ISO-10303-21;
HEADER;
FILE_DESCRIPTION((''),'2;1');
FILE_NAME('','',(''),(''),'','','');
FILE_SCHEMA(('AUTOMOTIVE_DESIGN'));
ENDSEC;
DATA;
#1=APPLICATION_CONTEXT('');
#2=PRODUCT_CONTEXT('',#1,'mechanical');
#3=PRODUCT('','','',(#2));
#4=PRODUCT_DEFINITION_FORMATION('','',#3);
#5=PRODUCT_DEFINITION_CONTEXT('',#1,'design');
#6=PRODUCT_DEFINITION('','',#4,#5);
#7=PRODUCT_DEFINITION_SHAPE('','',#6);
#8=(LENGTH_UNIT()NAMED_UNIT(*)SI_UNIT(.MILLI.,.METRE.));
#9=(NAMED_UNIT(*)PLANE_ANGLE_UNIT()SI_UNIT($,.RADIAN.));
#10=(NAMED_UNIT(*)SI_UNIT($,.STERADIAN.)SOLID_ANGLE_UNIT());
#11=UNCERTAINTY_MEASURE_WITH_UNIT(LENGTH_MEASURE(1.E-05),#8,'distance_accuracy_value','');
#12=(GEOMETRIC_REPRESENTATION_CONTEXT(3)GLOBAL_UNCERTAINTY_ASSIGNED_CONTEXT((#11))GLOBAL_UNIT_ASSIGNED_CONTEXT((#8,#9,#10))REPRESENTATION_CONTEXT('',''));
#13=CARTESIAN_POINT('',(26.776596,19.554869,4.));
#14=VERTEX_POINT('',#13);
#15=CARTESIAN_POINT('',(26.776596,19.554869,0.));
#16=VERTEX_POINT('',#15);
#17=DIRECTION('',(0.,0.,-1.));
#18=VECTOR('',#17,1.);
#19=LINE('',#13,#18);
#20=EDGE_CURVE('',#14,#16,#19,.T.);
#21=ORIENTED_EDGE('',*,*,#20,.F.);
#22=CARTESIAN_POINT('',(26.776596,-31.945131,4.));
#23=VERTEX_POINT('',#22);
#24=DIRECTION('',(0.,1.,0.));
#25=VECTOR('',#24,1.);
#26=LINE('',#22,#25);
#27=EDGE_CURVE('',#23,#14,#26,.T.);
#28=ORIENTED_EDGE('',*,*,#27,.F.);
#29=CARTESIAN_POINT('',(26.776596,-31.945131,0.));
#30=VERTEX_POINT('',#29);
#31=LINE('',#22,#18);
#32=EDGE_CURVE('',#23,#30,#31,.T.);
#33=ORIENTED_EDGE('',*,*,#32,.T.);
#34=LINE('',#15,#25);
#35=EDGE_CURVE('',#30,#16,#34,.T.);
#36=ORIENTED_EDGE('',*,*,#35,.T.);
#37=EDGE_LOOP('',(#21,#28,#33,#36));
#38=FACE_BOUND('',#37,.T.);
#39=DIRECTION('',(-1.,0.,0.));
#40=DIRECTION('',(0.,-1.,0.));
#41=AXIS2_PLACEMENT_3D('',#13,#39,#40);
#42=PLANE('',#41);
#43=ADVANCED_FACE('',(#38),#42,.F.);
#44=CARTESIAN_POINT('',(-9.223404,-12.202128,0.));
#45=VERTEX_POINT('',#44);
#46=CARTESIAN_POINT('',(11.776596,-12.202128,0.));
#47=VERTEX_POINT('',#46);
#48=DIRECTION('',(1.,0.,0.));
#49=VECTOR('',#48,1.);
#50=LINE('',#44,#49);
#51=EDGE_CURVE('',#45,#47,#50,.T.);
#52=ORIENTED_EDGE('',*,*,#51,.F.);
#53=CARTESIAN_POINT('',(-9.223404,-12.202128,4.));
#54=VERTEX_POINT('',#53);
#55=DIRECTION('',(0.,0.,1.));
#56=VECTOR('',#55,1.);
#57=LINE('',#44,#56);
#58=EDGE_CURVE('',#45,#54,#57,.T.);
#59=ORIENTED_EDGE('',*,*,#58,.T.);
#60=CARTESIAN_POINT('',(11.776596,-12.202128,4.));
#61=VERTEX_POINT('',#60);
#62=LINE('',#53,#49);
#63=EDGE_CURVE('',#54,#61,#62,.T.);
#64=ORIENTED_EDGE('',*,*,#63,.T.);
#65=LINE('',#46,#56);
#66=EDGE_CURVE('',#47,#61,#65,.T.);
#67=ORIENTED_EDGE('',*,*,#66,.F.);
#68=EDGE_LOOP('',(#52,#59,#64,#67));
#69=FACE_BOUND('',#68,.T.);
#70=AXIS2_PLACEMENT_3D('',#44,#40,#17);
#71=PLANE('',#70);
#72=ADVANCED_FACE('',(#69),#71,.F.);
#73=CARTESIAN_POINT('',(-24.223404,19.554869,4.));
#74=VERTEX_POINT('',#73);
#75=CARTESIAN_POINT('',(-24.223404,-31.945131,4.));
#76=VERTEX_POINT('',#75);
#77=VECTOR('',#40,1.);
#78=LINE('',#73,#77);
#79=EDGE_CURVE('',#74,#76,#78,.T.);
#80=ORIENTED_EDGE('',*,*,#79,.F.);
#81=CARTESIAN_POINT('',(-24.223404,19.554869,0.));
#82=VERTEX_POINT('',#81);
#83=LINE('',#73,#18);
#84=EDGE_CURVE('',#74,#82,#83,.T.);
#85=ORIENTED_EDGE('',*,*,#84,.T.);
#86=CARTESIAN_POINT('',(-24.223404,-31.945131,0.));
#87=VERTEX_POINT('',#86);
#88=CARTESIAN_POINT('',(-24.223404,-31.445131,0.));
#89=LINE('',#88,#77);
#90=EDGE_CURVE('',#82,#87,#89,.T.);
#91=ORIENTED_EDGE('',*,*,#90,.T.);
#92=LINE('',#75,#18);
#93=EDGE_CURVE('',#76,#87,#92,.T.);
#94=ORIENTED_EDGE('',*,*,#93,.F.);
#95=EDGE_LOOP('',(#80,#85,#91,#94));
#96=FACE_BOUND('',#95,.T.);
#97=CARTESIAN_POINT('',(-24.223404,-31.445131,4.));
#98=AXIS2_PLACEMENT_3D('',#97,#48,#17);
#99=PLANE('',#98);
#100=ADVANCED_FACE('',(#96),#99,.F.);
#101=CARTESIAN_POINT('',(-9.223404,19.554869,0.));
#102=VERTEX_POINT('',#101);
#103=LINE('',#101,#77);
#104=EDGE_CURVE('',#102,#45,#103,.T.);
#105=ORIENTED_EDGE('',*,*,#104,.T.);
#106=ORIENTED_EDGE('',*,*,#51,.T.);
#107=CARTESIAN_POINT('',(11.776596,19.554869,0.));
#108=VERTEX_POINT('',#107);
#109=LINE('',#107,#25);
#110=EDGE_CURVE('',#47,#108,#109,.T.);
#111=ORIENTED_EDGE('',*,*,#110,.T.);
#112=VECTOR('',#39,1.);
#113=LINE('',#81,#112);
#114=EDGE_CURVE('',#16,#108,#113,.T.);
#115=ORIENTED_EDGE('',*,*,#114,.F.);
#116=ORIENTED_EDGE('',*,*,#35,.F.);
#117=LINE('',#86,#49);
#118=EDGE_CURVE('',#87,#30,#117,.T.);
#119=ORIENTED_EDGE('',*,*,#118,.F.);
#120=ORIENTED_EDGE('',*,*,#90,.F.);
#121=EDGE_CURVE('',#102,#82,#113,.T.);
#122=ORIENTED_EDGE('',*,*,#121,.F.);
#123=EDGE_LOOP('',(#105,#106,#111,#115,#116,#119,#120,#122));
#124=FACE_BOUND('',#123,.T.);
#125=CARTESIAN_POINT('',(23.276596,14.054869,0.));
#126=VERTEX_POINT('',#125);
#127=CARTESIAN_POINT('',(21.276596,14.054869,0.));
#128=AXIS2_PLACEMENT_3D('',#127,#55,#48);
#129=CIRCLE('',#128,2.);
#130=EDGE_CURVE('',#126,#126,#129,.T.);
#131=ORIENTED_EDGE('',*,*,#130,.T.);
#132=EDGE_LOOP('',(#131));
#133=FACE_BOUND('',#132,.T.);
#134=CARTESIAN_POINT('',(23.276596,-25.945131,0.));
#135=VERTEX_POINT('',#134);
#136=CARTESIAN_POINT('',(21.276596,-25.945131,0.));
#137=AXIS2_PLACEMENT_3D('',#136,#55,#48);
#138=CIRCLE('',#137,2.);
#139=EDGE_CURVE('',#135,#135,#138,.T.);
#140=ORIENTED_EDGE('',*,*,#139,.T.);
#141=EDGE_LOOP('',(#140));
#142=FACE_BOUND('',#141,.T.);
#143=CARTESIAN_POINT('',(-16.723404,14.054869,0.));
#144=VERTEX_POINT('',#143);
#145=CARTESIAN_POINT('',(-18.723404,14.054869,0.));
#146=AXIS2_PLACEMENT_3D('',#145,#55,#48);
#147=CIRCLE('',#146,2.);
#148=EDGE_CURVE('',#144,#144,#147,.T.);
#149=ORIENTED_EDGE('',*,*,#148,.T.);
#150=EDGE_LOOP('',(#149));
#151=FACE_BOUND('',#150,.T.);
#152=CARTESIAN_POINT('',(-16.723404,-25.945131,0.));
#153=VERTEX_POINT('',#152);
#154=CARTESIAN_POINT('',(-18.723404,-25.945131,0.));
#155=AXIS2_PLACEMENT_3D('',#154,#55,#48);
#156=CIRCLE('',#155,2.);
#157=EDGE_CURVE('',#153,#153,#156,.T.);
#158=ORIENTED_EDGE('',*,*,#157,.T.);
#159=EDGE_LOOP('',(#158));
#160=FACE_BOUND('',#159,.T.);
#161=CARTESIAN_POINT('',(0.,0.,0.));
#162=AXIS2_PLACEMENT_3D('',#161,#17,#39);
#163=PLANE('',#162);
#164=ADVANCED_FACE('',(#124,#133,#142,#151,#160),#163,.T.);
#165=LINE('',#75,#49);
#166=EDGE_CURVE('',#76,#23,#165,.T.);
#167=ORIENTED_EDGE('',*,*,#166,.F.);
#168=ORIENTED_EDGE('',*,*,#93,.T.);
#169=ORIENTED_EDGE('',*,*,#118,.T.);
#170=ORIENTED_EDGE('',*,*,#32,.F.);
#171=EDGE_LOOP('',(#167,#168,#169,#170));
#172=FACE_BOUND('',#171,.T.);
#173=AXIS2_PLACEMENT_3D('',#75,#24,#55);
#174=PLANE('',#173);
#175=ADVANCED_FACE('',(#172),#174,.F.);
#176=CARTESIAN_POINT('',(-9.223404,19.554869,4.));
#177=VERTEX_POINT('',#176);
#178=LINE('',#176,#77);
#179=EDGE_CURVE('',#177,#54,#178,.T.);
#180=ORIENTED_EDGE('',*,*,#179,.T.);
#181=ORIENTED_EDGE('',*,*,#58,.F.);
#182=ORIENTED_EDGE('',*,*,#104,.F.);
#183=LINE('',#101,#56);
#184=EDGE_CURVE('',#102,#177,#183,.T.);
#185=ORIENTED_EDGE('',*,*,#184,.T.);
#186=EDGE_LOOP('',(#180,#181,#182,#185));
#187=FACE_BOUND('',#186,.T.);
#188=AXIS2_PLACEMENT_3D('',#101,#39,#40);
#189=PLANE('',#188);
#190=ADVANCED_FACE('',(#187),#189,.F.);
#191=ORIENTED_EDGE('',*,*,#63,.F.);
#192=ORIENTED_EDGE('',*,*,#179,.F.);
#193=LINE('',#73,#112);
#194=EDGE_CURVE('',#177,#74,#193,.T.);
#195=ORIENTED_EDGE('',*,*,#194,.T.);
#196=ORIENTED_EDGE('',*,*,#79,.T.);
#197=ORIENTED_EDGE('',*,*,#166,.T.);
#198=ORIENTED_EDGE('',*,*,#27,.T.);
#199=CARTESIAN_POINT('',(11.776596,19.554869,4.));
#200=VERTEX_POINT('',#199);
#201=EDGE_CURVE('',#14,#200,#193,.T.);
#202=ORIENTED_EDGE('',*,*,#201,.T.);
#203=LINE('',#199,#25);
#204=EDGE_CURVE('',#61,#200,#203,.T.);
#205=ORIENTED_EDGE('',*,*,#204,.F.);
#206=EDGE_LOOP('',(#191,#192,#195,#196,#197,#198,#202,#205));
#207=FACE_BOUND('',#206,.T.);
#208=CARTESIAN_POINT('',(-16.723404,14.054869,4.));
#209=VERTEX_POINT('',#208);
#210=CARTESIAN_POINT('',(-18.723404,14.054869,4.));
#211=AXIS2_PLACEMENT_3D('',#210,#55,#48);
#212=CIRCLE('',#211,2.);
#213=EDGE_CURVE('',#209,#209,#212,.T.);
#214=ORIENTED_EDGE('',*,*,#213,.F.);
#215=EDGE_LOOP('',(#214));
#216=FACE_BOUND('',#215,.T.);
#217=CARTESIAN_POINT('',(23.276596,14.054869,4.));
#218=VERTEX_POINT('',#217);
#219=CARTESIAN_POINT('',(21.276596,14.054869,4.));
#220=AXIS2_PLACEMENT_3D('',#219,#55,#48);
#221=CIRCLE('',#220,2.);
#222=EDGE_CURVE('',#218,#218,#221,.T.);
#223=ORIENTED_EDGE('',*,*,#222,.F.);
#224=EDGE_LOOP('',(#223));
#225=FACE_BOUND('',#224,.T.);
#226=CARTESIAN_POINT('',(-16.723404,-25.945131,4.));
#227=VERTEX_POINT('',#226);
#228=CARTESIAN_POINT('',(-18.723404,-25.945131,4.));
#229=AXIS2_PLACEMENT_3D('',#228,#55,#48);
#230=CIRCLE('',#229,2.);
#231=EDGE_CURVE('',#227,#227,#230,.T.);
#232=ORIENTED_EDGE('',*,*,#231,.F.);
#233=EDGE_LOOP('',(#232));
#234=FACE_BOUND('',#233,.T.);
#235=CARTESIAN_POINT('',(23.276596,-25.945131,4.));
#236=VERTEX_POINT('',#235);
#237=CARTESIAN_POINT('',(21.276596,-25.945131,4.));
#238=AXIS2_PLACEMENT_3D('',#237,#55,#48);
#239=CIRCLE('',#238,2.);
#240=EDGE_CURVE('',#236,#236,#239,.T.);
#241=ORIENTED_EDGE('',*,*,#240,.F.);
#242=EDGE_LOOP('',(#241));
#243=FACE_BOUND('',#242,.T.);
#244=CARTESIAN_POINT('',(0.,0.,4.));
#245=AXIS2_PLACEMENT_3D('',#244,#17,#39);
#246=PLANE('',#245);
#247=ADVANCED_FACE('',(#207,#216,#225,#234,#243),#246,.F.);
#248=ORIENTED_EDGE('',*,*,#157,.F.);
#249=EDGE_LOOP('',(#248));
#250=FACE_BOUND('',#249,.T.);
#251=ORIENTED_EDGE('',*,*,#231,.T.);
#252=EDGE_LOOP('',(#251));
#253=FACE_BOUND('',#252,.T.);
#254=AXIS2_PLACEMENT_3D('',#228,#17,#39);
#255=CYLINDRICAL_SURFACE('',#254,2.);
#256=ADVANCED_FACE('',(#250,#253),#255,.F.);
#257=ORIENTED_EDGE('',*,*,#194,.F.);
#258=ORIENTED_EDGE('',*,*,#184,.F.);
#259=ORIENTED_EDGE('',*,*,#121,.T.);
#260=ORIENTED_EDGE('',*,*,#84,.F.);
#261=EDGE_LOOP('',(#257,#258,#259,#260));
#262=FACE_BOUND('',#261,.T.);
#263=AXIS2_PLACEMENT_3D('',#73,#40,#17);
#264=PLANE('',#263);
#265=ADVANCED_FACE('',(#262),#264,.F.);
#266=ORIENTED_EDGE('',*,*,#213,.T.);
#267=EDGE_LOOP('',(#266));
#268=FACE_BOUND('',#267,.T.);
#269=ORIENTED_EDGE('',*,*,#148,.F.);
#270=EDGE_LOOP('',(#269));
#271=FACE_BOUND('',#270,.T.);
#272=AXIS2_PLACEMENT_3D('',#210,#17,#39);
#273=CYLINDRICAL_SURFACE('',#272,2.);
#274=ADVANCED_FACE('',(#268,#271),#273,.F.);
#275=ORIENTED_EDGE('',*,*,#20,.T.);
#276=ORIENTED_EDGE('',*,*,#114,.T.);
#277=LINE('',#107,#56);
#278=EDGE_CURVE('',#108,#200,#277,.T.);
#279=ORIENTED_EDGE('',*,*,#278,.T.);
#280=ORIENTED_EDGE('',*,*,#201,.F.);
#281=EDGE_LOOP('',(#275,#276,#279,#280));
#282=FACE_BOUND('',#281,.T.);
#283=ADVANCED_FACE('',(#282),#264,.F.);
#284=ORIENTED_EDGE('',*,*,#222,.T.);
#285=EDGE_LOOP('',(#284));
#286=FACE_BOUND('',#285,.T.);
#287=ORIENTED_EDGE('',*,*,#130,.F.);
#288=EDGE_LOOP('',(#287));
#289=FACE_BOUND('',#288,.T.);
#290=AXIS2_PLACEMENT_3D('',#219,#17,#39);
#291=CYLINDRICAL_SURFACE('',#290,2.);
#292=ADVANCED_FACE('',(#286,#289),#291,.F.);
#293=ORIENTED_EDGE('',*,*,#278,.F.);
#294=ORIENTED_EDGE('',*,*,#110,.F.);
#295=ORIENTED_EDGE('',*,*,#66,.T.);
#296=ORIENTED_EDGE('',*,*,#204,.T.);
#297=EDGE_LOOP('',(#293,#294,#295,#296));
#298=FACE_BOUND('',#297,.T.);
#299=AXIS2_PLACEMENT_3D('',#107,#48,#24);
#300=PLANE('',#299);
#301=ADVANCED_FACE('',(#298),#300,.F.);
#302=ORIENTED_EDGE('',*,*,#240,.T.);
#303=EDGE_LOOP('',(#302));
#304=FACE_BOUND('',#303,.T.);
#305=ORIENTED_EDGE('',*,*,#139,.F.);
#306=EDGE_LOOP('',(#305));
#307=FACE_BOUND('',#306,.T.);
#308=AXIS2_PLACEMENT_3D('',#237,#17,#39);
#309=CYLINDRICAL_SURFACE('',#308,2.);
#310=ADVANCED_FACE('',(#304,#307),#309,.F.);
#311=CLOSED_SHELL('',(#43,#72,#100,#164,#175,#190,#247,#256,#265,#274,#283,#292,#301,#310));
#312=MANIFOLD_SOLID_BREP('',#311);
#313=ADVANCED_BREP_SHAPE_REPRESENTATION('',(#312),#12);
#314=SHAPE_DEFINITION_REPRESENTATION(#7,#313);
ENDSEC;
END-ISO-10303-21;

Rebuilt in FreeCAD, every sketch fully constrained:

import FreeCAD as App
import Part
import Sketcher
Q = App.Units.Quantity


def add_polygon(sketch, points):
    """Adds a closed chain of lines whose ends are joined by coincident constraints."""
    first, n = sketch.GeometryCount, len(points)
    for a, b in zip(points, points[1:] + points[:1]):
        sketch.addGeometry(Part.LineSegment(App.Vector(*a, 0), App.Vector(*b, 0)), False)
    for i in range(n):
        sketch.addConstraint(Sketcher.Constraint("Coincident", first + i, 2, first + (i + 1) % n, 1))

doc = App.newDocument("Part")
body = doc.addObject("PartDesign::Body", "Body")

sketch1 = body.newObject("Sketcher::SketchObject", "Sketch")
sketch1.AttachmentSupport = (doc.getObject("XY_Plane"), [""])
sketch1.MapMode = "FlatFace"
add_polygon(sketch1, [(-24.223404, 19.554869), (-24.223404, -31.945131), (26.776596, -31.945131), (26.776596, 19.554869)])
sketch1.addGeometry(Part.Circle(App.Vector(-18.723404, -25.945131, 0), App.Vector(0, 0, 1), 2), False)
sketch1.addGeometry(Part.Circle(App.Vector(21.276596, -25.945131, 0), App.Vector(0, 0, 1), 2), False)
sketch1.addGeometry(Part.Circle(App.Vector(-18.723404, 14.054869, 0), App.Vector(0, 0, 1), 2), False)
sketch1.addGeometry(Part.Circle(App.Vector(21.276596, 14.054869, 0), App.Vector(0, 0, 1), 2), False)
sketch1.addConstraint(Sketcher.Constraint("Vertical", 0))
sketch1.addConstraint(Sketcher.Constraint("Horizontal", 1))
sketch1.addConstraint(Sketcher.Constraint("Vertical", 2))
sketch1.addConstraint(Sketcher.Constraint("Horizontal", 3))
sketch1.addConstraint(Sketcher.Constraint("Equal", 4, 5))
sketch1.addConstraint(Sketcher.Constraint("Equal", 5, 6))
sketch1.addConstraint(Sketcher.Constraint("Equal", 6, 7))
sketch1.addConstraint(Sketcher.Constraint("Horizontal", 4, 3, 5, 3))
sketch1.addConstraint(Sketcher.Constraint("Horizontal", 6, 3, 7, 3))
sketch1.addConstraint(Sketcher.Constraint("Vertical", 4, 3, 6, 3))
sketch1.addConstraint(Sketcher.Constraint("Vertical", 5, 3, 7, 3))
sketch1.addConstraint(Sketcher.Constraint("Diameter", 4, Q("4 mm")))
sketch1.addConstraint(Sketcher.Constraint("DistanceX", 1, 1, 1, 2, Q("51 mm")))
sketch1.addConstraint(Sketcher.Constraint("DistanceY", 0, 2, 0, 1, Q("51.5 mm")))
sketch1.addConstraint(Sketcher.Constraint("DistanceX", 4, 3, 5, 3, Q("40 mm")))
sketch1.addConstraint(Sketcher.Constraint("DistanceY", 4, 3, 6, 3, Q("40 mm")))
sketch1.addConstraint(Sketcher.Constraint("DistanceY", 0, 2, 4, 3, Q("6 mm")))
sketch1.addConstraint(Sketcher.Constraint("DistanceX", 0, 2, 4, 3, Q("5.5 mm")))
sketch1.addConstraint(Sketcher.Constraint("DistanceY", 4, 3, -1, 1, Q("25.945131 mm")))
sketch1.addConstraint(Sketcher.Constraint("DistanceX", 4, 3, -1, 1, Q("18.723404 mm")))
pad1 = body.newObject("PartDesign::Pad", "Pad")
pad1.Profile = sketch1
pad1.Length = 4

sketch2 = body.newObject("Sketcher::SketchObject", "Sketch001")
sketch2.AttachmentSupport = (doc.getObject("XY_Plane"), [""])
sketch2.MapMode = "FlatFace"
sketch2.AttachmentOffset = App.Placement(App.Vector(0, 0, 4), App.Rotation())
add_polygon(sketch2, [(-9.223404, 19.554869), (-9.223404, -12.202128), (11.776596, -12.202128), (11.776596, 19.554869)])
sketch2.addConstraint(Sketcher.Constraint("Vertical", 0))
sketch2.addConstraint(Sketcher.Constraint("Horizontal", 1))
sketch2.addConstraint(Sketcher.Constraint("Vertical", 2))
sketch2.addConstraint(Sketcher.Constraint("Horizontal", 3))
sketch2.addConstraint(Sketcher.Constraint("DistanceX", 1, 1, 1, 2, Q("21 mm")))
sketch2.addConstraint(Sketcher.Constraint("DistanceY", 0, 2, 0, 1, Q("31.756996 mm")))
sketch2.addConstraint(Sketcher.Constraint("DistanceY", -1, 1, 2, 2, Q("19.554869 mm")))
sketch2.addConstraint(Sketcher.Constraint("DistanceX", 0, 2, -1, 1, Q("9.223404 mm")))
pocket1 = body.newObject("PartDesign::Pocket", "Pocket")
pocket1.Profile = sketch2
pocket1.Length = 4

doc.recompute()
